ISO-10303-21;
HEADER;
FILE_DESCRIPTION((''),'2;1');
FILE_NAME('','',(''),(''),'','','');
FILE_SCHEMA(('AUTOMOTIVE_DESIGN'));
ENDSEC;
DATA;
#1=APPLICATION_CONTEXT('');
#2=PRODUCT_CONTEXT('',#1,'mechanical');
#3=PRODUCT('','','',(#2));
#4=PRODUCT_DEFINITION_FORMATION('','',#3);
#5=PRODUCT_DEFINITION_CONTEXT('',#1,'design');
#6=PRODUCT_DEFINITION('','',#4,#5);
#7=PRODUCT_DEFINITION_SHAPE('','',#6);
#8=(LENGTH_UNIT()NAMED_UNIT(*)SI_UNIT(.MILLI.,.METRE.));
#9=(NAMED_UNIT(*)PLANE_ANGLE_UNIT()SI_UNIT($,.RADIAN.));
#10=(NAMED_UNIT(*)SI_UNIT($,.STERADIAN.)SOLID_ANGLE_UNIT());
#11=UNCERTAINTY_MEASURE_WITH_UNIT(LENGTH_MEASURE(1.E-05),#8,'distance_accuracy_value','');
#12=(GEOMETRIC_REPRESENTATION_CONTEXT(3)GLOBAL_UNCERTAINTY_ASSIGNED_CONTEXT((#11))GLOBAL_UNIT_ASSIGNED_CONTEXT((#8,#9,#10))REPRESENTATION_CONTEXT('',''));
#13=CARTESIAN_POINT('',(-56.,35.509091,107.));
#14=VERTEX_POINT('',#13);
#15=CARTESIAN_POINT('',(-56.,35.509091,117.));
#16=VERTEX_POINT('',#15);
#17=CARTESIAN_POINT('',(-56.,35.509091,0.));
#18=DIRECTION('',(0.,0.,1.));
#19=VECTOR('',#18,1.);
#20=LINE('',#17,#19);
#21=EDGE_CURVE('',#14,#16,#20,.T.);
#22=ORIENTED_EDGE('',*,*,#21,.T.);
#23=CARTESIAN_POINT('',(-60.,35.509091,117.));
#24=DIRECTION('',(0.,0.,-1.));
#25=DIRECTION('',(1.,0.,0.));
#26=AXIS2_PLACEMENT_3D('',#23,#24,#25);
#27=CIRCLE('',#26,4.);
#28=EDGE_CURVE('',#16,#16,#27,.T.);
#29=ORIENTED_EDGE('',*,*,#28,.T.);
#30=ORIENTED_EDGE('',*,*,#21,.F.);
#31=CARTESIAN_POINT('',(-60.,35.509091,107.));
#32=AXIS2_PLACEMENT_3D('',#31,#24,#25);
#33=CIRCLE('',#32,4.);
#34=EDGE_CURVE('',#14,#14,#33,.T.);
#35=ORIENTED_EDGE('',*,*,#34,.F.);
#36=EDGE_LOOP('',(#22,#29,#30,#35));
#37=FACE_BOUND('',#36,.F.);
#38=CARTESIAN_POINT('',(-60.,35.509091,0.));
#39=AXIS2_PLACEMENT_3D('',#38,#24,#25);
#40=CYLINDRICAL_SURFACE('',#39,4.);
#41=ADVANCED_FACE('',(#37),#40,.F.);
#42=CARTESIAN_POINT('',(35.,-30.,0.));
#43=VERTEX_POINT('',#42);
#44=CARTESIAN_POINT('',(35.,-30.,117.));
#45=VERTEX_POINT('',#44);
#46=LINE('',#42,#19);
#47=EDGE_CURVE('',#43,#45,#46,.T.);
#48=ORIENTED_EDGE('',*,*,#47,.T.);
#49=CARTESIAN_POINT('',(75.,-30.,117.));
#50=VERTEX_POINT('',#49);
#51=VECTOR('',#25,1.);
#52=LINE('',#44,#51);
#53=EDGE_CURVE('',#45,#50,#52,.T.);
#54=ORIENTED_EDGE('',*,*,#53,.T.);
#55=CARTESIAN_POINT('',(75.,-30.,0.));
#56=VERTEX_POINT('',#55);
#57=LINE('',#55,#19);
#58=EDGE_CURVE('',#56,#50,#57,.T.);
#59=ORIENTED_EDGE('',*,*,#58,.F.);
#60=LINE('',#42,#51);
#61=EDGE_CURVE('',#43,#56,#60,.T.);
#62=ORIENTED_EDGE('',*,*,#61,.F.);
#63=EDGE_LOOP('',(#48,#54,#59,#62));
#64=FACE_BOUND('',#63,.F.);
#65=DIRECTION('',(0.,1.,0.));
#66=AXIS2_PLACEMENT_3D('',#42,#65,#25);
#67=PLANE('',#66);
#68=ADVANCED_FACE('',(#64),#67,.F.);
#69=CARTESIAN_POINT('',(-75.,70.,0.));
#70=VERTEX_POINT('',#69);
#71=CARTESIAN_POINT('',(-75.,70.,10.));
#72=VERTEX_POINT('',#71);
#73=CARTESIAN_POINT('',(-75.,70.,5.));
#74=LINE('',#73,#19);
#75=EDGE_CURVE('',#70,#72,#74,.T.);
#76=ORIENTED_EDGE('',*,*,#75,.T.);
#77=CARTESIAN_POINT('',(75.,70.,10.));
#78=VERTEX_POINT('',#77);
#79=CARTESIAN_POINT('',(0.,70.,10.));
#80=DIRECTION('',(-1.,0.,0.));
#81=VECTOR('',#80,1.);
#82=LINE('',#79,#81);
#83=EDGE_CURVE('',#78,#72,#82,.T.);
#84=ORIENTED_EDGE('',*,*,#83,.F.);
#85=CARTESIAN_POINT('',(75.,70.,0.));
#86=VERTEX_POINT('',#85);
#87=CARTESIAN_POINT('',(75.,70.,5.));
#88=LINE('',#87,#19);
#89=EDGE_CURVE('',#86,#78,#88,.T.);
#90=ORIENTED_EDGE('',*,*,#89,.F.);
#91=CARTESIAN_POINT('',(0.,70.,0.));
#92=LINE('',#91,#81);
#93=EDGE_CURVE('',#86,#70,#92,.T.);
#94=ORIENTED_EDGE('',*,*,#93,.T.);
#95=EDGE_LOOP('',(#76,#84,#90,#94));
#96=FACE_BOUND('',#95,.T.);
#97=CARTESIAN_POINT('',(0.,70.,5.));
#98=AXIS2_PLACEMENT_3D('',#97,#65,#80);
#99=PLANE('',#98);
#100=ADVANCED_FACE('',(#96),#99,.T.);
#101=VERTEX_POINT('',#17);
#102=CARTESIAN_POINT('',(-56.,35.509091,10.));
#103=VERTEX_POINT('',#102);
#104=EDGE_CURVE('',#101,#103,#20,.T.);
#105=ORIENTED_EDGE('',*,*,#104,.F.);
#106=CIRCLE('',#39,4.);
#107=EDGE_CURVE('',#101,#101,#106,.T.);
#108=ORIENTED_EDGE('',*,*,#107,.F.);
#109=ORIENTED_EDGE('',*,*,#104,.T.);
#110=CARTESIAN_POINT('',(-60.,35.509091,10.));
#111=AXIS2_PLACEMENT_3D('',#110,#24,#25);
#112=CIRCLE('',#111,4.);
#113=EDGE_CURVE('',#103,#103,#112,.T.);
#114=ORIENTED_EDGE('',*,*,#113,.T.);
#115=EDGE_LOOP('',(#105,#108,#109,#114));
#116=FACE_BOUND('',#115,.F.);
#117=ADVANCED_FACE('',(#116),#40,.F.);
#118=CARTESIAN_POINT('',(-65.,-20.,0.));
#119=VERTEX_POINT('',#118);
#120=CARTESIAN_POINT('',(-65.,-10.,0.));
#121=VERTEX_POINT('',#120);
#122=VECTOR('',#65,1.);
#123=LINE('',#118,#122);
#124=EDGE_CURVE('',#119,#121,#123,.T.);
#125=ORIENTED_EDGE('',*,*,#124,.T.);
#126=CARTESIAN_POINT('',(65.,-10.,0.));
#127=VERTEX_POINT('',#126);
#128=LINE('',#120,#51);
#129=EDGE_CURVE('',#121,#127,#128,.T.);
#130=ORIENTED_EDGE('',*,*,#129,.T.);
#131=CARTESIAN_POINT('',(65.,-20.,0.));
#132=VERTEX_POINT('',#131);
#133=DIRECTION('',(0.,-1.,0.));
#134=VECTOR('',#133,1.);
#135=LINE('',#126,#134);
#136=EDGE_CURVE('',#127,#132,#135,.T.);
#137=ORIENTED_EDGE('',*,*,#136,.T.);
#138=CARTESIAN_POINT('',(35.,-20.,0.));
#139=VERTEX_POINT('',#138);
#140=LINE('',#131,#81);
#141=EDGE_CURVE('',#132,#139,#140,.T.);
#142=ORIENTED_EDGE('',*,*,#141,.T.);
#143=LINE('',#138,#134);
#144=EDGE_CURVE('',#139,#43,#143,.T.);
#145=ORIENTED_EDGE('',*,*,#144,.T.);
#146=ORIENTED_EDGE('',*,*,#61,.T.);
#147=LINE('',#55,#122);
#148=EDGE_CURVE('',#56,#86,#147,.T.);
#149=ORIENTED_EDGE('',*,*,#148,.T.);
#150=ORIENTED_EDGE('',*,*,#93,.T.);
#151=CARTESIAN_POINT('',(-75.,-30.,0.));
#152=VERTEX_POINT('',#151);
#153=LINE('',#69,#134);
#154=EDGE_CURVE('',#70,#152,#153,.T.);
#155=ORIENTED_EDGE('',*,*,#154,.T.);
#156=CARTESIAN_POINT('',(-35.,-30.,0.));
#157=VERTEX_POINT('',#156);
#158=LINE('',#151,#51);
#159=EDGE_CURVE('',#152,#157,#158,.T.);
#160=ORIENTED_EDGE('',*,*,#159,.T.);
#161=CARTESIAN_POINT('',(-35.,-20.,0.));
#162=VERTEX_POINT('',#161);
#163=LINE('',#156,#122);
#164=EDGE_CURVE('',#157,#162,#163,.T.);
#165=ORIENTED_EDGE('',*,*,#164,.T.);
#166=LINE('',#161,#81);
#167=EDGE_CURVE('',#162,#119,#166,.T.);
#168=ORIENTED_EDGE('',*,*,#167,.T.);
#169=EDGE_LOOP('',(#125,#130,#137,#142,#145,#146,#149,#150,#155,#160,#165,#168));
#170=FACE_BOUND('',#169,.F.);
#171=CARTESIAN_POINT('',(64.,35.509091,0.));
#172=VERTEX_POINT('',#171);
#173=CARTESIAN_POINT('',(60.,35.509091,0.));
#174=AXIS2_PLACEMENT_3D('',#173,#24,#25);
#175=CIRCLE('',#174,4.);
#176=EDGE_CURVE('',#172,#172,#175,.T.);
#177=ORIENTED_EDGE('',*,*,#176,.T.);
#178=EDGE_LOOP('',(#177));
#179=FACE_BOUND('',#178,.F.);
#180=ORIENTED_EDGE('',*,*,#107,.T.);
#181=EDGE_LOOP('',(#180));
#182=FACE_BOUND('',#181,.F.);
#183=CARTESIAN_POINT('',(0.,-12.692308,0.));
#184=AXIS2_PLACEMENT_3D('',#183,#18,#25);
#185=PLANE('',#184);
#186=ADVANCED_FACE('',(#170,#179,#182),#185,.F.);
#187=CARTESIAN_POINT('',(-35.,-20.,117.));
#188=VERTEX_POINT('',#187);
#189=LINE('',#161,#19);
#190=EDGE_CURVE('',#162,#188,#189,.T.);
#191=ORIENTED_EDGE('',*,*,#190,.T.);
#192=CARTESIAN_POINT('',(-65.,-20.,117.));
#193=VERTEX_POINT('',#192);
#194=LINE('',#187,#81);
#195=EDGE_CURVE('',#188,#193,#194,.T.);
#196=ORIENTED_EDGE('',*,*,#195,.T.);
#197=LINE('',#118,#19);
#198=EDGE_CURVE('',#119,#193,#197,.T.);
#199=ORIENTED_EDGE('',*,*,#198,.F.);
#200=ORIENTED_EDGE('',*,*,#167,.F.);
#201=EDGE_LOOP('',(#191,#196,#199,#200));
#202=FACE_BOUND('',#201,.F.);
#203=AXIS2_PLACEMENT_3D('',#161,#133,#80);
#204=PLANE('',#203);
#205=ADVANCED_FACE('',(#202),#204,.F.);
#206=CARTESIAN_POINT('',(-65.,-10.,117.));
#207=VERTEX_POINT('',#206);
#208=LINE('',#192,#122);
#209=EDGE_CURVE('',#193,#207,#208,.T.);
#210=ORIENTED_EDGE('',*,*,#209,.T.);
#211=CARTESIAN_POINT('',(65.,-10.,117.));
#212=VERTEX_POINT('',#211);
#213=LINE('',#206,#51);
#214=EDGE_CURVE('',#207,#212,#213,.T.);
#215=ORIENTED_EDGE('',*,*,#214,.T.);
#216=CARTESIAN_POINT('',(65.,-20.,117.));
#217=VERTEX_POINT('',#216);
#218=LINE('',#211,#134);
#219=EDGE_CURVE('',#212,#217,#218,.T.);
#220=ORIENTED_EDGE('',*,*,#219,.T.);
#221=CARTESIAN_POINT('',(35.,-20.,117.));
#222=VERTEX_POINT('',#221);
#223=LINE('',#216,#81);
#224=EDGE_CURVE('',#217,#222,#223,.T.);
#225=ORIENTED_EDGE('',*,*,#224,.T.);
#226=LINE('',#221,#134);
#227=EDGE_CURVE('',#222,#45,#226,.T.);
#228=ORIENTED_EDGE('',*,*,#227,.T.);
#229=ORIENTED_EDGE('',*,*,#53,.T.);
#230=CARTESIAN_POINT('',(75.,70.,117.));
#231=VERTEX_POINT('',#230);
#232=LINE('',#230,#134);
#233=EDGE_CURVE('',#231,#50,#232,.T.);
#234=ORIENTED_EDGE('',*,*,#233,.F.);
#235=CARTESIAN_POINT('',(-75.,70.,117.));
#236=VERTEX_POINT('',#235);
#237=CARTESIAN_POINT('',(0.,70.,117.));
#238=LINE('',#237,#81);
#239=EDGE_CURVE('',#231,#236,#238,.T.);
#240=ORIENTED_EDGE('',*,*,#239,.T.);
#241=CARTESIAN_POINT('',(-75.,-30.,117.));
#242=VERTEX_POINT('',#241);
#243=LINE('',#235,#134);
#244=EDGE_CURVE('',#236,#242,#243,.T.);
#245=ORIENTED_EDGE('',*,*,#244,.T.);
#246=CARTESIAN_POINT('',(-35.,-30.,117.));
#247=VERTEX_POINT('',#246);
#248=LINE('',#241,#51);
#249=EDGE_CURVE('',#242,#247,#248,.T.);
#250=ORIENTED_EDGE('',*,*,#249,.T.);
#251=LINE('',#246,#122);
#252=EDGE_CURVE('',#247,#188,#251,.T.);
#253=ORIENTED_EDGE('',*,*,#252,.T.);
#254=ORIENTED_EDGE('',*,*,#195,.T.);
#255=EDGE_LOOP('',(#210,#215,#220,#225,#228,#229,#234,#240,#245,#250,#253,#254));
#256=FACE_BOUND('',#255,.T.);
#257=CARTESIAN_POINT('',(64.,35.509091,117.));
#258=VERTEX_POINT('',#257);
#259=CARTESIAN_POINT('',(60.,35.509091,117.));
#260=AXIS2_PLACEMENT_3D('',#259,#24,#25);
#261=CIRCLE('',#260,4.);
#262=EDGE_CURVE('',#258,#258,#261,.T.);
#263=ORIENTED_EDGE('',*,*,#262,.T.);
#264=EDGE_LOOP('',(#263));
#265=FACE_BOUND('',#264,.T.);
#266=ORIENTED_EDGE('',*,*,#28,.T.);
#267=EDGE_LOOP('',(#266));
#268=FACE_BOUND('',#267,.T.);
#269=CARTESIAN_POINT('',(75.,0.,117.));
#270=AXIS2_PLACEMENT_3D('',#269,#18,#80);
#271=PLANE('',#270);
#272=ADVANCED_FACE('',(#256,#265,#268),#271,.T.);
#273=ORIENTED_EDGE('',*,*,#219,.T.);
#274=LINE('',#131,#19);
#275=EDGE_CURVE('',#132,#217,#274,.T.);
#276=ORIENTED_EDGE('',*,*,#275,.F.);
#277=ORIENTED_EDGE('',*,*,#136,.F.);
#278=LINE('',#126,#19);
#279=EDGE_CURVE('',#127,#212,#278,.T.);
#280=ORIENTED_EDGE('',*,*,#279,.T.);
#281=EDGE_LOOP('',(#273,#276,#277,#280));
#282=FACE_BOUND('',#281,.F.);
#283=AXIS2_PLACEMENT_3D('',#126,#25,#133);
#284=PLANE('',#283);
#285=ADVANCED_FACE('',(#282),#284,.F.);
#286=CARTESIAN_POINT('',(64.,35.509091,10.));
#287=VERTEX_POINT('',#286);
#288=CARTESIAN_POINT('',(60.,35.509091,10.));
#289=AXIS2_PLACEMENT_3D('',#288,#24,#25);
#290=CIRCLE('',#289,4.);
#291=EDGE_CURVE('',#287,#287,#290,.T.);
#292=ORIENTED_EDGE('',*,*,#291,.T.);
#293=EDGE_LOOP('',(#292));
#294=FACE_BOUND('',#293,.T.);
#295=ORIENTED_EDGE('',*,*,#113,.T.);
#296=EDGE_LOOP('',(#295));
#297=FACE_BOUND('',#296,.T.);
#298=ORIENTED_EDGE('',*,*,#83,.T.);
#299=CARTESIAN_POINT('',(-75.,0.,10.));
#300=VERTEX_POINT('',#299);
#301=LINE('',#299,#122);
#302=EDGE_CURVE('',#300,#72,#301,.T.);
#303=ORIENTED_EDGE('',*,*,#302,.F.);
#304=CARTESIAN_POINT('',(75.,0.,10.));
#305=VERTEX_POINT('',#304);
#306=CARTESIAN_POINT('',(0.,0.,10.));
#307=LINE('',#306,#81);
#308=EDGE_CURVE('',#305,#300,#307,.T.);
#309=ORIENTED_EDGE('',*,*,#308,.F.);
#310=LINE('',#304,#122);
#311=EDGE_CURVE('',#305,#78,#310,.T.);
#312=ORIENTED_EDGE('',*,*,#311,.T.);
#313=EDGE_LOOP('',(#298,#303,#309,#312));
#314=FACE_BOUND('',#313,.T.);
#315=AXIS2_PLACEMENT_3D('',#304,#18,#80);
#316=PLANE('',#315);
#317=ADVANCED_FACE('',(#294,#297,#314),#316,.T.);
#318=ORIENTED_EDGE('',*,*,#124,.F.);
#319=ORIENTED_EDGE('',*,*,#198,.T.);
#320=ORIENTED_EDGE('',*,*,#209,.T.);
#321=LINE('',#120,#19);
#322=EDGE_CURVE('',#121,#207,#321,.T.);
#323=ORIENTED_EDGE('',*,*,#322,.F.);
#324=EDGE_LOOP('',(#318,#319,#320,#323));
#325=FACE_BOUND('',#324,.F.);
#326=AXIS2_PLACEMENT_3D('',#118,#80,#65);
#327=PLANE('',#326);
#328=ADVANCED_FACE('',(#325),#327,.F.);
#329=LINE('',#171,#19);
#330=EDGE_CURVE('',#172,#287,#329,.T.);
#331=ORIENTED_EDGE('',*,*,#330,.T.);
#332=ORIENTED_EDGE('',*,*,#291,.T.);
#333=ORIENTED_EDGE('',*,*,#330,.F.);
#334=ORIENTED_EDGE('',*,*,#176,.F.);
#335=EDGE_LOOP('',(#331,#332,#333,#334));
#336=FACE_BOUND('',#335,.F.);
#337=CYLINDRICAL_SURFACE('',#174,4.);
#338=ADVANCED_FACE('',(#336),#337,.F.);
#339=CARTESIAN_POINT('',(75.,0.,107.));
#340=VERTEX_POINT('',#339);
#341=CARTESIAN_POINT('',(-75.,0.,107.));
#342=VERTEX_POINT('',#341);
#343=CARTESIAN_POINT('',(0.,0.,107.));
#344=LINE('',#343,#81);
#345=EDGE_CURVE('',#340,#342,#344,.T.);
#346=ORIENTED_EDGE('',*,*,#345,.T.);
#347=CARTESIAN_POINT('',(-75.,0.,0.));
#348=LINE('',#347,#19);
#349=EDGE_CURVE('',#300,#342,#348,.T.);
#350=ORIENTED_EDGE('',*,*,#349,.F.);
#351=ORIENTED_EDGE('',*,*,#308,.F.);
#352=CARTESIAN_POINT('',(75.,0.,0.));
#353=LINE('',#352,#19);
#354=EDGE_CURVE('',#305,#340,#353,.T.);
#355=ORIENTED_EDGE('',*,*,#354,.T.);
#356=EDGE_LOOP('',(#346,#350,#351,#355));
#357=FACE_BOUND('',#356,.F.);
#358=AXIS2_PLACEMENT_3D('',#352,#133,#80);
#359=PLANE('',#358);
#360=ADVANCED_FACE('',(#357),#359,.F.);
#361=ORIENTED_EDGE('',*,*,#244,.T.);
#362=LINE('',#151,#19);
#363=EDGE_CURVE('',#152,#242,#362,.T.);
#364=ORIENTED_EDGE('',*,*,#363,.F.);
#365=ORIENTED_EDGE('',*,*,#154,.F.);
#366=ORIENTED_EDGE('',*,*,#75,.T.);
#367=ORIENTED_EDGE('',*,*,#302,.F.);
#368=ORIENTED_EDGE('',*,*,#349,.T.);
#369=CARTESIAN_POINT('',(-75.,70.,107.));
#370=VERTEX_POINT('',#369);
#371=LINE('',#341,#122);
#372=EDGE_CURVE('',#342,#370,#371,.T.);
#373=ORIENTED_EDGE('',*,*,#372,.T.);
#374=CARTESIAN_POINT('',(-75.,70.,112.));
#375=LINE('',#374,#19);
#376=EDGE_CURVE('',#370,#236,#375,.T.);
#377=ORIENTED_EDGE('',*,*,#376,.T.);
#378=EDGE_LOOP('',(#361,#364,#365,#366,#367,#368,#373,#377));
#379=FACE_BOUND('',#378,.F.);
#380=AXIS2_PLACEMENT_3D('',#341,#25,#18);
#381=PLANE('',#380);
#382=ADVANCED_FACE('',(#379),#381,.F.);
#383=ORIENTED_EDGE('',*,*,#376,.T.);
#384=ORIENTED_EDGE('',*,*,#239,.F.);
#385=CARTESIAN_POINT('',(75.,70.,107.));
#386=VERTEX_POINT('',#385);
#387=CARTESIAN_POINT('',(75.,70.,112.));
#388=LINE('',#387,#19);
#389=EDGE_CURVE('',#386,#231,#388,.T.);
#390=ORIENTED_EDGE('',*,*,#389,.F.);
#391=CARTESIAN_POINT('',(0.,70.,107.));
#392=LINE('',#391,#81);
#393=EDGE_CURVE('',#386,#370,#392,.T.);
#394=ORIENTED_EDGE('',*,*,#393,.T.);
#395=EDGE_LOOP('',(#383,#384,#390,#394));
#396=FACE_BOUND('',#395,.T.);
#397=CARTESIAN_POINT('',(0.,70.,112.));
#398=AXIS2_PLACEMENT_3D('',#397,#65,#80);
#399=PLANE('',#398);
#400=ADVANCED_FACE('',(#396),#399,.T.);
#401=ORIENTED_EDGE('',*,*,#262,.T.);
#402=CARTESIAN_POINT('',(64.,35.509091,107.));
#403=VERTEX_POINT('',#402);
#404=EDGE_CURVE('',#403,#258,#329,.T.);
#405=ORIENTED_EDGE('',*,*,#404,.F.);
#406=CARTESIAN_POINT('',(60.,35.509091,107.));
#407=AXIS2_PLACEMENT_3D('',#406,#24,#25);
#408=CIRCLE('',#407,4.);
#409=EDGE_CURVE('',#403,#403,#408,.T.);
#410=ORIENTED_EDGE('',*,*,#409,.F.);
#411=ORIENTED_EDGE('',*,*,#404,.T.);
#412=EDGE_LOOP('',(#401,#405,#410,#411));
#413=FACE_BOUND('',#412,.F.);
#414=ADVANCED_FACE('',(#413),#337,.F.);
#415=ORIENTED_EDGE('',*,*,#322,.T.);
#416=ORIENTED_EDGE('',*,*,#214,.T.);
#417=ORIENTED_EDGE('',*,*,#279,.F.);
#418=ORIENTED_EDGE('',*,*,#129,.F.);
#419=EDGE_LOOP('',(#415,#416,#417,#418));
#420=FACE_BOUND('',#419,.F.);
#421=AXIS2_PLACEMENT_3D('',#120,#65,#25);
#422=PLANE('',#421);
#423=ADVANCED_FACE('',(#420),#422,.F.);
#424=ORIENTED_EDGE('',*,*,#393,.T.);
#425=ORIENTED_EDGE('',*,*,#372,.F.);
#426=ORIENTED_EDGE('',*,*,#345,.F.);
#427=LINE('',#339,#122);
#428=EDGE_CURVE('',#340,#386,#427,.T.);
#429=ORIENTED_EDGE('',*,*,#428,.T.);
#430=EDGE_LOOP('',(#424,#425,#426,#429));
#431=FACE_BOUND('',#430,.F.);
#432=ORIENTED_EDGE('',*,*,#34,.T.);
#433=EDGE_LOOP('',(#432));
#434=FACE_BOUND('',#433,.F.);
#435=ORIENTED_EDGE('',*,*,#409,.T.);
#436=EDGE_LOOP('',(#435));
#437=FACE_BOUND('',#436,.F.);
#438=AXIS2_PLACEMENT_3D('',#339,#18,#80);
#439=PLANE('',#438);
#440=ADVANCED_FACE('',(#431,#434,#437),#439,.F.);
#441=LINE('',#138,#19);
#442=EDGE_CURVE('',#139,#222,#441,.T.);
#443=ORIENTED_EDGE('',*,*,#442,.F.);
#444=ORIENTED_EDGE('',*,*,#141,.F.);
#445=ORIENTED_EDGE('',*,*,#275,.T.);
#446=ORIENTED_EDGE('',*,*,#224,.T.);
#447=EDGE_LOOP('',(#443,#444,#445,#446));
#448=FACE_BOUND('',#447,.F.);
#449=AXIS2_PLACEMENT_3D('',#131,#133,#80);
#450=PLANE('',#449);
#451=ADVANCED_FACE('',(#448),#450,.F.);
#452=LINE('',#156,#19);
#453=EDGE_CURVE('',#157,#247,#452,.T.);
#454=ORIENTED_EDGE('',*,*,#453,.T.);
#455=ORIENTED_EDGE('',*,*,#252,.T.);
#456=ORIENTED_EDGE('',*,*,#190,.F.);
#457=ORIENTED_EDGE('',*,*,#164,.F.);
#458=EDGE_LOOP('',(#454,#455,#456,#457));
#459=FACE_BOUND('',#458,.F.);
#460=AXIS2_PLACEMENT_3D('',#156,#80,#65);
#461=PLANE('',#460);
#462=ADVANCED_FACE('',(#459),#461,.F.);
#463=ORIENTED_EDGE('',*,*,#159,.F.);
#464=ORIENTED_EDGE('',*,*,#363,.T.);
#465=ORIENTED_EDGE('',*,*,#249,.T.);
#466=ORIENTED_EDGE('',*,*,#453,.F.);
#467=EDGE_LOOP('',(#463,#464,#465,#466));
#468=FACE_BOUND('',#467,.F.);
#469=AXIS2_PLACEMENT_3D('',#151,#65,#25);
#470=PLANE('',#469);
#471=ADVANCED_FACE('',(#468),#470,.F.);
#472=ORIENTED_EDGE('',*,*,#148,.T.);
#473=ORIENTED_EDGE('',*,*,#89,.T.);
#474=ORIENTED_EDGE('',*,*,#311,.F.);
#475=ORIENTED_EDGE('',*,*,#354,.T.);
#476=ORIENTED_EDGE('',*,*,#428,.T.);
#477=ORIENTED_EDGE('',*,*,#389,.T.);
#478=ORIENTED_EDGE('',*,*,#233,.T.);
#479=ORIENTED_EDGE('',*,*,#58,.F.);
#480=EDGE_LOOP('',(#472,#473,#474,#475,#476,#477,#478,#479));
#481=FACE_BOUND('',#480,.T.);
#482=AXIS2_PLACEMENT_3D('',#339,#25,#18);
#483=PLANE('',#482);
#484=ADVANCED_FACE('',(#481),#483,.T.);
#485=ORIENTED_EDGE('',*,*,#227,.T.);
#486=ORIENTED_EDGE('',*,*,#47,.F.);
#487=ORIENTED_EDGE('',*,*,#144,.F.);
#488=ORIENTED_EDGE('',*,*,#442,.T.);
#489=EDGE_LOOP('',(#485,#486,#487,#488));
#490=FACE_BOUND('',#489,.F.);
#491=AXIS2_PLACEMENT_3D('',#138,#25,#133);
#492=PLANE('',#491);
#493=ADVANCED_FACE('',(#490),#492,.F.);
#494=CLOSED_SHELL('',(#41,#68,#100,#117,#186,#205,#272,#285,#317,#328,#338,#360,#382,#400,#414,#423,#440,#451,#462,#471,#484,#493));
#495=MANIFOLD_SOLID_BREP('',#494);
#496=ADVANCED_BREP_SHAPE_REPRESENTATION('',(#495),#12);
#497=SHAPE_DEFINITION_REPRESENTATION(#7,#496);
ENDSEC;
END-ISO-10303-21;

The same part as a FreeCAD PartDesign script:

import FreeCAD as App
import Part
import Sketcher
Q = App.Units.Quantity


def add_polygon(sketch, points):
    """Adds a closed chain of lines whose ends are joined by coincident constraints."""
    first, n = sketch.GeometryCount, len(points)
    for a, b in zip(points, points[1:] + points[:1]):
        sketch.addGeometry(Part.LineSegment(App.Vector(*a, 0), App.Vector(*b, 0)), False)
    for i in range(n):
        sketch.addConstraint(Sketcher.Constraint("Coincident", first + i, 2, first + (i + 1) % n, 1))

doc = App.newDocument("Part")
body = doc.addObject("PartDesign::Body", "Body")

# Sketch on XY plane
sketch1 = body.newObject("Sketcher::SketchObject", "Sketch")
sketch1.AttachmentSupport = (doc.getObject("XY_Plane"), [""])
sketch1.MapMode = "FlatFace"
add_polygon(sketch1, [(-75, -30), (-35, -30), (-35, -20), (-65, -20), (-65, -10), (65, -10), (65, -20), (35, -20), (35, -30), (75, -30), (75, 0), (-75, 0)])  # lines 0-11
sketch1.addConstraint([
    Sketcher.Constraint("Horizontal", 0),
    Sketcher.Constraint("Vertical", 1),
    Sketcher.Constraint("Horizontal", 2),
    Sketcher.Constraint("Vertical", 3),
    Sketcher.Constraint("Horizontal", 4),
    Sketcher.Constraint("Vertical", 5),
    Sketcher.Constraint("Horizontal", 6),
    Sketcher.Constraint("Vertical", 7),
    Sketcher.Constraint("Horizontal", 8),
    Sketcher.Constraint("Vertical", 9),
    Sketcher.Constraint("Horizontal", 10),
    Sketcher.Constraint("Vertical", 11),
    Sketcher.Constraint("Symmetric", 9, 2, 10, 2, -1, 1),
    Sketcher.Constraint("Symmetric", 2, 2, 5, 2, -2),
    Sketcher.Constraint("Symmetric", 0, 2, 7, 2, -2),
    Sketcher.Constraint("Equal", 1, 3),
    Sketcher.Constraint("Equal", 6, 9),
    Sketcher.Constraint("DistanceX", 0, 1, 0, 2, Q("40 mm")),
    Sketcher.Constraint("DistanceX", 2, 2, 2, 1, Q("30 mm")),
    Sketcher.Constraint("DistanceX", 4, 1, 4, 2, Q("130 mm")),
    Sketcher.Constraint("DistanceY", 1, 1, 1, 2, Q("10 mm")),
])
pad1 = body.newObject("PartDesign::Pad", "Pad")
pad1.Profile = sketch1
pad1.Length = 117

# Sketch on XZ plane
sketch2 = body.newObject("Sketcher::SketchObject", "Sketch001")
sketch2.AttachmentSupport = (doc.getObject("XZ_Plane"), [""])
sketch2.MapMode = "FlatFace"
add_polygon(sketch2, [(75, 117), (75, 107), (-75, 107), (-75, 117)])  # lines 0-3
add_polygon(sketch2, [(75, 10), (75, 0), (-75, 0), (-75, 10)])  # lines 4-7
sketch2.addConstraint([
    Sketcher.Constraint("Vertical", 0),
    Sketcher.Constraint("Horizontal", 1),
    Sketcher.Constraint("Vertical", 2),
    Sketcher.Constraint("Horizontal", 3),
    Sketcher.Constraint("Vertical", 4),
    Sketcher.Constraint("Horizontal", 5),
    Sketcher.Constraint("Vertical", 6),
    Sketcher.Constraint("Horizontal", 7),
    Sketcher.Constraint("Symmetric", 4, 2, 5, 2, -1, 1),
    Sketcher.Constraint("Vertical", 3, 2, 4, 2),
    Sketcher.Constraint("Vertical", 2, 2, 5, 2),
    Sketcher.Constraint("Equal", 2, 4),
    Sketcher.Constraint("DistanceX", 1, 2, 1, 1, Q("150 mm")),
    Sketcher.Constraint("DistanceY", 0, 2, 0, 1, Q("10 mm")),
    Sketcher.Constraint("DistanceY", -1, 1, 0, 2, Q("107 mm")),
])
pad2 = body.newObject("PartDesign::Pad", "Pad001")
pad2.Profile = sketch2
pad2.Length = 70
pad2.Reversed = True

# Sketch on XY plane
sketch3 = body.newObject("Sketcher::SketchObject", "Sketch002")
sketch3.AttachmentSupport = (doc.getObject("XY_Plane"), [""])
sketch3.MapMode = "FlatFace"
sketch3.addGeometry([
    Part.Circle(App.Vector(-60, 35.5, 0), App.Vector(0, 0, 1), 4),
    Part.Circle(App.Vector(60, 35.5, 0), App.Vector(0, 0, 1), 4),
], False)
sketch3.addConstraint([
    Sketcher.Constraint("Equal", 0, 1),
    Sketcher.Constraint("Symmetric", 0, 3, 1, 3, -2),
    Sketcher.Constraint("Diameter", 0, Q("8 mm")),
    Sketcher.Constraint("DistanceX", 0, 3, -1, 1, Q("60 mm")),
    Sketcher.Constraint("DistanceY", -1, 1, 0, 3, Q("35.509091 mm")),
])
pocket1 = body.newObject("PartDesign::Pocket", "Pocket")
pocket1.Profile = sketch3
pocket1.Length = 139.1
pocket1.Reversed = True

doc.recompute()
